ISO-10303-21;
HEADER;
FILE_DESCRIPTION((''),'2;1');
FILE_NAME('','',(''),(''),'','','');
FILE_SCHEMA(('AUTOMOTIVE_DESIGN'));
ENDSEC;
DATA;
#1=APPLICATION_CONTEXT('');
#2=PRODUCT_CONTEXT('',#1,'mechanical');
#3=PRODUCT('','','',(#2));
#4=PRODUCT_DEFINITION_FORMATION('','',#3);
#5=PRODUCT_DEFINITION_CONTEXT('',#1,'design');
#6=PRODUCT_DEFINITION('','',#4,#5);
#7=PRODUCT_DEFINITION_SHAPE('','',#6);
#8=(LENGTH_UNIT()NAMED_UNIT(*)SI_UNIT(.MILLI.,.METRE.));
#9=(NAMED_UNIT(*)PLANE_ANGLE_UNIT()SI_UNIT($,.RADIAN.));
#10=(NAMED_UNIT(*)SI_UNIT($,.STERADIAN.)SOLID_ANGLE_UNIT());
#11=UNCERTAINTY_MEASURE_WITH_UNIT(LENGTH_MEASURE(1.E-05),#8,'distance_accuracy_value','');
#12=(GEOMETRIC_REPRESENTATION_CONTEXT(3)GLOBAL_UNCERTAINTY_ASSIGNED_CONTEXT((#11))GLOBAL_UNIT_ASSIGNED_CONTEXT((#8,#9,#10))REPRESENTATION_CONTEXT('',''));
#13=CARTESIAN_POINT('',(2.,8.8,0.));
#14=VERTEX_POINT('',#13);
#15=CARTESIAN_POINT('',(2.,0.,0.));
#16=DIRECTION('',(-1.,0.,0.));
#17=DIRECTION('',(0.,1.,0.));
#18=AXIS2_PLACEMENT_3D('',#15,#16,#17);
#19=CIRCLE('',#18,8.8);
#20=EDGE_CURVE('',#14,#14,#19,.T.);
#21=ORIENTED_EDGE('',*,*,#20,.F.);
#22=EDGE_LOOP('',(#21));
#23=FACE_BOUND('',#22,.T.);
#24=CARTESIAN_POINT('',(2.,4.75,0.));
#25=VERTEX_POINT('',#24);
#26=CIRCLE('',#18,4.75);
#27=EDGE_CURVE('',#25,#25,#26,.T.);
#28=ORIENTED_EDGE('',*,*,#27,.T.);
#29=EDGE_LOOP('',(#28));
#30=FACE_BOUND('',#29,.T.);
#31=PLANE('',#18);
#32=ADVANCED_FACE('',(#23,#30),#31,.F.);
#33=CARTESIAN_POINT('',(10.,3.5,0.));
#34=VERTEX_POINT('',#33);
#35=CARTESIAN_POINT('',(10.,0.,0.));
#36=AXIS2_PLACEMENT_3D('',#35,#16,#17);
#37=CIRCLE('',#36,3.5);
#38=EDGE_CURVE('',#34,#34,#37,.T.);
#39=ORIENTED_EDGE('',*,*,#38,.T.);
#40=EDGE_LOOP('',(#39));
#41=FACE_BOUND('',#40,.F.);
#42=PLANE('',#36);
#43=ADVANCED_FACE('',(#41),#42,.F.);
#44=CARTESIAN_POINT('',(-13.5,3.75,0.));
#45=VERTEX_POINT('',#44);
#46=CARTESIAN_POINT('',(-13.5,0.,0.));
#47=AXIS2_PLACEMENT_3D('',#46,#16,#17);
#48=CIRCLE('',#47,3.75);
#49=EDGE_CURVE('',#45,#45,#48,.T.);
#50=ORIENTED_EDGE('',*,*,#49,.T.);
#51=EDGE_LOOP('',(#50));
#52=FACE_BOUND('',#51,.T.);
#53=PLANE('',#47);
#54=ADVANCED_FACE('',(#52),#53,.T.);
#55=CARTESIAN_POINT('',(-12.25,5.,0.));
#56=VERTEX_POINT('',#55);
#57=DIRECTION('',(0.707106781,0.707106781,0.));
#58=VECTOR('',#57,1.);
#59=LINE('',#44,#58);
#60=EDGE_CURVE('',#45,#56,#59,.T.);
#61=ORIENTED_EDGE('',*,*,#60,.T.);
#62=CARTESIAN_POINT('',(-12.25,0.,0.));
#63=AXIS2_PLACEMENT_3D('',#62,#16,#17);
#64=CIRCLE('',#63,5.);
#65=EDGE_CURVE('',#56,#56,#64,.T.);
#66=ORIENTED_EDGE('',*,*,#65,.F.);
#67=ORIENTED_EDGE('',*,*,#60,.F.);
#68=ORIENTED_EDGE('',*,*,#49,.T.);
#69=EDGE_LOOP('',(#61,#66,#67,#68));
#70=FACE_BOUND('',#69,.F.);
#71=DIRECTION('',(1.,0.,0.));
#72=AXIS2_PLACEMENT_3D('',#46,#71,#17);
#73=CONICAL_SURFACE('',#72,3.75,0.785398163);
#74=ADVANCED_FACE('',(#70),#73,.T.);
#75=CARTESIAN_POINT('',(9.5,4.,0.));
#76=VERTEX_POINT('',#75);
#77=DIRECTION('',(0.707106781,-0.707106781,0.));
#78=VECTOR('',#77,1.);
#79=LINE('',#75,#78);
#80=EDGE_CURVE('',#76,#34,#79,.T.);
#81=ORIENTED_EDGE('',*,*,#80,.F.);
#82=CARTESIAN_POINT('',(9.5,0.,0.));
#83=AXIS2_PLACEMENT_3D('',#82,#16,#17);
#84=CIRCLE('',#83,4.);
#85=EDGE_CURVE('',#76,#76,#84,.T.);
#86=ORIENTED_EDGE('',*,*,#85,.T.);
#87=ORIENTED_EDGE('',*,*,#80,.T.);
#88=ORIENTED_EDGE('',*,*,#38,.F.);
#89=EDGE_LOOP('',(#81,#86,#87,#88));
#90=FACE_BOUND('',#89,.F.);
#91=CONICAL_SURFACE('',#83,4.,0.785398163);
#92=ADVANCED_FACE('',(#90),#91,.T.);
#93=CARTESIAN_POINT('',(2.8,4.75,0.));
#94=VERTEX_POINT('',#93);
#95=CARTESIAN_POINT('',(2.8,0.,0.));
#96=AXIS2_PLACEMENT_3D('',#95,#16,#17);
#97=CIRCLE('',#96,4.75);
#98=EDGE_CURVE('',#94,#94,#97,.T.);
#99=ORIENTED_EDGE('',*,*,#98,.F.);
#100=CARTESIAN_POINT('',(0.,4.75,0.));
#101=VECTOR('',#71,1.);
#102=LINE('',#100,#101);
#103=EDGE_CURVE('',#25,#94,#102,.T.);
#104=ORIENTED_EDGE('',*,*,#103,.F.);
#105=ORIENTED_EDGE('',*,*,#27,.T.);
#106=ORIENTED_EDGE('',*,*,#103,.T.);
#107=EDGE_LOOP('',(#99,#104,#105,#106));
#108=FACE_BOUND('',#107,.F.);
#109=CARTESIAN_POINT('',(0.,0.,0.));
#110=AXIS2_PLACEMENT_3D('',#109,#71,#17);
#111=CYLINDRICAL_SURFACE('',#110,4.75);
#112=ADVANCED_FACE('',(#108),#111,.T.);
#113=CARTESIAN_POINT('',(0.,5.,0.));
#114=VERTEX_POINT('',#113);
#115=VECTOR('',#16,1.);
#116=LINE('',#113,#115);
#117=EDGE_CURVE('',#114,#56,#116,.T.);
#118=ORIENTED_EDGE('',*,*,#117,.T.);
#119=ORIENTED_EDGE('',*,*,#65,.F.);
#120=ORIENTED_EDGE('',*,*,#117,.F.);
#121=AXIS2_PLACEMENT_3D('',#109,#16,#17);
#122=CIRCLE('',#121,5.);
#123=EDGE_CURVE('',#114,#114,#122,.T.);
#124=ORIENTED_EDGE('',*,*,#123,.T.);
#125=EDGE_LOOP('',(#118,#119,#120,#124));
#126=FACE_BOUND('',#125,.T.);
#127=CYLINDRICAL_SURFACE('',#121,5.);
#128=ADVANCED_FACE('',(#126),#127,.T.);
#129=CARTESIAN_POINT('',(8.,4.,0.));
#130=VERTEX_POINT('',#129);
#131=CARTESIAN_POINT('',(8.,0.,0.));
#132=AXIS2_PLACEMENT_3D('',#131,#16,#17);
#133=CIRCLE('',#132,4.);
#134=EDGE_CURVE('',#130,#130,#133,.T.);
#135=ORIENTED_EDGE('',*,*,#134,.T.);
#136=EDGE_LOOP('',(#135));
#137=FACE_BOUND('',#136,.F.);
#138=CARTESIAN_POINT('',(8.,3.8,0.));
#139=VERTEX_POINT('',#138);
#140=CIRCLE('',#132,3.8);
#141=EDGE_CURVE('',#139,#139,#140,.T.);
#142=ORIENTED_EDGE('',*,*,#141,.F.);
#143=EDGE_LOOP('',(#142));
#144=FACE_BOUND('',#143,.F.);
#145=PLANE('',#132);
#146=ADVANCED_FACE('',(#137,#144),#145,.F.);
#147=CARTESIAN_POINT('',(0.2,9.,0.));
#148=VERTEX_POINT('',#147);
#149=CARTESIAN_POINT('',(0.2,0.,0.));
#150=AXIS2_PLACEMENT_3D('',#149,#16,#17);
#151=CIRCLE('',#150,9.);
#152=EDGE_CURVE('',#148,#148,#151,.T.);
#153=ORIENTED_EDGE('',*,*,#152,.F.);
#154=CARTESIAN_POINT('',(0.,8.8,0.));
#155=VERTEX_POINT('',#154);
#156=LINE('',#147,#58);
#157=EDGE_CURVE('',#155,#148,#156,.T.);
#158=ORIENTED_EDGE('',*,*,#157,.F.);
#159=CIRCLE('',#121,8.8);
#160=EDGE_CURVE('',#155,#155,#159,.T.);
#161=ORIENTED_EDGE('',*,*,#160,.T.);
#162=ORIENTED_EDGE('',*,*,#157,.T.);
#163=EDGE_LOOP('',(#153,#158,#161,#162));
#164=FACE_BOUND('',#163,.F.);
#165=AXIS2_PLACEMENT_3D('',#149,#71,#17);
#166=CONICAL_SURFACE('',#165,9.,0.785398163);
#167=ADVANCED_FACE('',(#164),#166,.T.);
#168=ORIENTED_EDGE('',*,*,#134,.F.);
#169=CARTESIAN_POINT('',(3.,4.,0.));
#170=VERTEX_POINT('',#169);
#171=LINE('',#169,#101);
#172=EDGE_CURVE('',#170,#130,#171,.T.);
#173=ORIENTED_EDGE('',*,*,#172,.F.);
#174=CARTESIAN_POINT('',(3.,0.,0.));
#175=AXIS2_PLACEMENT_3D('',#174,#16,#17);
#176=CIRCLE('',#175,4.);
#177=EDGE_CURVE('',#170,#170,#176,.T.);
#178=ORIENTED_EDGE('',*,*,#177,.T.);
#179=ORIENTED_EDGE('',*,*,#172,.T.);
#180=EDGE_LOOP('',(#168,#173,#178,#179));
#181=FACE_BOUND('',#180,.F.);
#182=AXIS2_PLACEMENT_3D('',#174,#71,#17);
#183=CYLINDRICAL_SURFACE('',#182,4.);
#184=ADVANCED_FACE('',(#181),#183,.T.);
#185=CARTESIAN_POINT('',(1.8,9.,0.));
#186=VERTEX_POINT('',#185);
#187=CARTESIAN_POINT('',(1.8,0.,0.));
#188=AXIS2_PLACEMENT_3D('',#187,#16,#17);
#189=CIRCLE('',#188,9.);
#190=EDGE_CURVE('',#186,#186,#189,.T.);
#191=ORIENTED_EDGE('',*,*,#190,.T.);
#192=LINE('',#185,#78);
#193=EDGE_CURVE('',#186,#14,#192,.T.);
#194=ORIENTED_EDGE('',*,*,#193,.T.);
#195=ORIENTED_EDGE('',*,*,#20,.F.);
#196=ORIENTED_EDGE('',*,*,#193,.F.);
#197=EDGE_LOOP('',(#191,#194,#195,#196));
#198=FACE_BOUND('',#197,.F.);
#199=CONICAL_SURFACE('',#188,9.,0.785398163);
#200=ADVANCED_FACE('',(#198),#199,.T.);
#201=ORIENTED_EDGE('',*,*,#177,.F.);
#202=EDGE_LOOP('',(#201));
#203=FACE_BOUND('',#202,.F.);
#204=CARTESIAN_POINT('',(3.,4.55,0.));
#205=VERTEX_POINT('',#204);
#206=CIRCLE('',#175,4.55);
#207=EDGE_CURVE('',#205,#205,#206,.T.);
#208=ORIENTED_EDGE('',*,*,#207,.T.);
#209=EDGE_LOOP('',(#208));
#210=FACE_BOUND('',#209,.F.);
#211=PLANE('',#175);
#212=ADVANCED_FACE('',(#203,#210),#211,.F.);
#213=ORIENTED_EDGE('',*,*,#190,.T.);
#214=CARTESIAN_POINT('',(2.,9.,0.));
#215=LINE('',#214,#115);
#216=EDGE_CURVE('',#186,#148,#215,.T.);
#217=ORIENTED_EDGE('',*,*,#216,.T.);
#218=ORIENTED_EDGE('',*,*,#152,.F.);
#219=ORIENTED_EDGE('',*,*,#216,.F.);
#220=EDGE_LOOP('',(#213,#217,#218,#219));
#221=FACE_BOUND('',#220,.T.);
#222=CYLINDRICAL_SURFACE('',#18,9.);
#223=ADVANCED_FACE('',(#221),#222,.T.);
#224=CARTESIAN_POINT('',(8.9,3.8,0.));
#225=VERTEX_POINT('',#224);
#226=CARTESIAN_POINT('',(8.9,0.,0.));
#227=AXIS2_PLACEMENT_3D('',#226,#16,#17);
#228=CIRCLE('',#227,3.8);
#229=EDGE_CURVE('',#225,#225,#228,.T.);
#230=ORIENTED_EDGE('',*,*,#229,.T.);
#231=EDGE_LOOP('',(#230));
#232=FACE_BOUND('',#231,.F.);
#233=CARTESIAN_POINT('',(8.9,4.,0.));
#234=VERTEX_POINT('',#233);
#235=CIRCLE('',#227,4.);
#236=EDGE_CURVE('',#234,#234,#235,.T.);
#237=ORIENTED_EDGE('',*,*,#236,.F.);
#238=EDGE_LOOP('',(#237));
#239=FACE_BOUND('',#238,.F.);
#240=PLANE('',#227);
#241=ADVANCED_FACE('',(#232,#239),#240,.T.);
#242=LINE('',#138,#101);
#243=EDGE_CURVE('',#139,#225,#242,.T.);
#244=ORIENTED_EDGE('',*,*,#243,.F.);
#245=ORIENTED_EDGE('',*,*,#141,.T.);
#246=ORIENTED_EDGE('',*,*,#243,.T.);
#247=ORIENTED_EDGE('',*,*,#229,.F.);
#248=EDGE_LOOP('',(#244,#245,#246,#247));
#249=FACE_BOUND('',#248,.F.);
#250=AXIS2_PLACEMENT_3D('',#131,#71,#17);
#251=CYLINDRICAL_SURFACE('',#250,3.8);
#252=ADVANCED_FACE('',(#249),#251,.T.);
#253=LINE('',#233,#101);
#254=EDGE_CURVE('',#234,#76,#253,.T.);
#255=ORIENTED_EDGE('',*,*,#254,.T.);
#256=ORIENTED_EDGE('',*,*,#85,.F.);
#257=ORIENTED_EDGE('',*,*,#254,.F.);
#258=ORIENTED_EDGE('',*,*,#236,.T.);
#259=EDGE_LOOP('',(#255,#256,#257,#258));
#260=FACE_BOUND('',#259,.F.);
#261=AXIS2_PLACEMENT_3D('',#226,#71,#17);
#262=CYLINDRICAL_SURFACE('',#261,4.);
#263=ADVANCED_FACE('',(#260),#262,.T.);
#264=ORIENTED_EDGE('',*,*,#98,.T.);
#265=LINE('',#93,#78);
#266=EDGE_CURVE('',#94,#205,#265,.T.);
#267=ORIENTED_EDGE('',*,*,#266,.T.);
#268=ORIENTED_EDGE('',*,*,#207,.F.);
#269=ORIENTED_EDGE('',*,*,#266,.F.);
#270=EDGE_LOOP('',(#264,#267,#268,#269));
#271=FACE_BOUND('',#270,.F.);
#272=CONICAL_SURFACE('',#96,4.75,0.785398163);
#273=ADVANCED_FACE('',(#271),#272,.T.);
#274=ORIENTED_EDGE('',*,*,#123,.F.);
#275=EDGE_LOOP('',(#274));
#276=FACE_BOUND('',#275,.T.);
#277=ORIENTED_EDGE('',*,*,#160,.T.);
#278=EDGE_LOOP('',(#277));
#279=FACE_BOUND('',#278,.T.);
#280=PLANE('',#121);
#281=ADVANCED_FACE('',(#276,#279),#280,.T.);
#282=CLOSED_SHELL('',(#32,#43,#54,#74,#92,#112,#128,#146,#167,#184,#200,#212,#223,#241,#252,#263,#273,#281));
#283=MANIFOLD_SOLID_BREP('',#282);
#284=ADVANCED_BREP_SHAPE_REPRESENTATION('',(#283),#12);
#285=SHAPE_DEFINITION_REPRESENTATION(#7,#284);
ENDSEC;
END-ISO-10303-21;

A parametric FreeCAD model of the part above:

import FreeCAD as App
import Part
import Sketcher
Q = App.Units.Quantity


def edges_at(feature, points):
    """Names of the edges that pass closest to the given points."""
    edges = feature.Shape.Edges
    near = lambda p: min(range(len(edges)), key=lambda i: edges[i].distToShape(Part.Vertex(*p))[0])
    return sorted({f"Edge{near(p) + 1}" for p in points})


def add_polygon(sketch, points):
    """Adds a closed chain of lines whose ends are joined by coincident constraints."""
    first, n = sketch.GeometryCount, len(points)
    for a, b in zip(points, points[1:] + points[:1]):
        sketch.addGeometry(Part.LineSegment(App.Vector(*a, 0), App.Vector(*b, 0)), False)
    for i in range(n):
        sketch.addConstraint(Sketcher.Constraint("Coincident", first + i, 2, first + (i + 1) % n, 1))

doc = App.newDocument("Part")
body = doc.addObject("PartDesign::Body", "Body")

sketch1 = doc.addObject("Sketcher::SketchObject", "Sketch")
body.addObject(sketch1)
sketch1.AttachmentSupport = (doc.XY_Plane, [""])
sketch1.MapMode = "FlatFace"
add_polygon(sketch1, [(-13.5, 0), (10, 0), (10, 3.5), (9.5, 4), (8.9, 4), (8.9, 3.8), (8, 3.8), (8, 4), (3, 4), (3, 4.75), (2, 4.75), (2, 9), (0, 9), (0, 5), (-12.25, 5), (-13.5, 3.75)])
sketch1.addConstraint(Sketcher.Constraint("Horizontal", 0))
sketch1.addConstraint(Sketcher.Constraint("Vertical", 1))
sketch1.addConstraint(Sketcher.Constraint("Horizontal", 3))
sketch1.addConstraint(Sketcher.Constraint("Vertical", 4))
sketch1.addConstraint(Sketcher.Constraint("Horizontal", 5))
sketch1.addConstraint(Sketcher.Constraint("Vertical", 6))
sketch1.addConstraint(Sketcher.Constraint("Horizontal", 7))
sketch1.addConstraint(Sketcher.Constraint("Vertical", 8))
sketch1.addConstraint(Sketcher.Constraint("Horizontal", 9))
sketch1.addConstraint(Sketcher.Constraint("Vertical", 10))
sketch1.addConstraint(Sketcher.Constraint("Horizontal", 11))
sketch1.addConstraint(Sketcher.Constraint("Vertical", 12))
sketch1.addConstraint(Sketcher.Constraint("Horizontal", 13))
sketch1.addConstraint(Sketcher.Constraint("Vertical", 15))
sketch1.addConstraint(Sketcher.Constraint("PointOnObject", 0, 2, -1))
sketch1.addConstraint(Sketcher.Constraint("PointOnObject", 11, 2, -2))
sketch1.addConstraint(Sketcher.Constraint("Perpendicular", 2, 14))
sketch1.addConstraint(Sketcher.Constraint("Horizontal", 3, 2, 6, 2))
sketch1.addConstraint(Sketcher.Constraint("DistanceX", 7, 2, 7, 1, Q("5 mm")))
sketch1.addConstraint(Sketcher.Constraint("DistanceX", 9, 2, 9, 1, Q("1 mm")))
sketch1.addConstraint(Sketcher.Constraint("DistanceX", 3, 2, 3, 1, Q("0.6 mm")))
sketch1.addConstraint(Sketcher.Constraint("DistanceX", 5, 2, 5, 1, Q("0.9 mm")))
sketch1.addConstraint(Sketcher.Constraint("DistanceX", -1, 1, 0, 2, Q("10 mm")))
sketch1.addConstraint(Sketcher.Constraint("DistanceX", -1, 1, 5, 2, Q("8 mm")))
sketch1.addConstraint(Sketcher.Constraint("DistanceY", -1, 1, 12, 2, Q("5 mm")))
sketch1.addConstraint(Sketcher.Constraint("DistanceY", 7, 2, 10, 2, Q("5 mm")))
sketch1.addConstraint(Sketcher.Constraint("DistanceY", 7, 2, 12, 2, Q("1 mm")))
sketch1.addConstraint(Sketcher.Constraint("DistanceY", 14, 2, 9, 2, Q("1 mm")))
sketch1.addConstraint(Sketcher.Constraint("DistanceX", 14, 2, -1, 1, Q("13.5 mm")))
sketch1.addConstraint(Sketcher.Constraint("DistanceY", 1, 2, 2, 2, Q("0.5 mm")))
sketch1.addConstraint(Sketcher.Constraint("DistanceX", 14, 2, 13, 2, Q("1.25 mm")))
sketch1.addConstraint(Sketcher.Constraint("DistanceY", 4, 2, 4, 1, Q("0.2 mm")))
revolution = doc.addObject("PartDesign::Revolution", "Revolution")
body.addObject(revolution)
revolution.Profile = sketch1
revolution.ReferenceAxis = (sketch1, ["H_Axis"])
revolution.Angle = 360
doc.recompute()

chamfer = doc.addObject("PartDesign::Chamfer", "Chamfer")
body.addObject(chamfer)
chamfer.Base = (revolution, edges_at(revolution, [(3, -4.75, 0), (2, -9, 0), (0, -9, 0)]))
chamfer.Size = 0.2

doc.recompute()
